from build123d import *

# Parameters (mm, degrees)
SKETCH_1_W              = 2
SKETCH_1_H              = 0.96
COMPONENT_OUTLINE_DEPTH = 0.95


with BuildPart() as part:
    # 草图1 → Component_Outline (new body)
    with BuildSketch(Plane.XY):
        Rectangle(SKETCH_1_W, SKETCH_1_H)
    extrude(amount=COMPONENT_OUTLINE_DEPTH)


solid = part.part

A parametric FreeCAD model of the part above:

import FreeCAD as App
import Part
import Sketcher
Q = App.Units.Quantity


def add_polygon(sketch, points):
    """Adds a closed chain of lines whose ends are joined by coincident constraints."""
    first, n = sketch.GeometryCount, len(points)
    for a, b in zip(points, points[1:] + points[:1]):
        sketch.addGeometry(Part.LineSegment(App.Vector(*a, 0), App.Vector(*b, 0)), False)
    for i in range(n):
        sketch.addConstraint(Sketcher.Constraint("Coincident", first + i, 2, first + (i + 1) % n, 1))

doc = App.newDocument("Part")
body = doc.addObject("PartDesign::Body", "Body")

sketch1 = doc.addObject("Sketcher::SketchObject", "Sketch")
body.addObject(sketch1)
sketch1.AttachmentSupport = (doc.XY_Plane, [""])
sketch1.MapMode = "FlatFace"
add_polygon(sketch1, [(-1, 0.5), (-1, -0.5), (1, -0.5), (1, 0.5)])
sketch1.addConstraint([
    Sketcher.Constraint("Vertical", 0),
    Sketcher.Constraint("Horizontal", 1),
    Sketcher.Constraint("Vertical", 2),
    Sketcher.Constraint("Horizontal", 3),
    Sketcher.Constraint("Symmetric", 0, 2, 2, 2, -1, 1),
    Sketcher.Constraint("DistanceX", 1, 1, 1, 2, Q("2 mm")),
    Sketcher.Constraint("DistanceY", 0, 2, 0, 1, Q("0.96 mm")),
])
pad1 = doc.addObject("PartDesign::Pad", "Pad")
body.addObject(pad1)
pad1.Profile = sketch1
pad1.Length = 0.95

doc.recompute()
